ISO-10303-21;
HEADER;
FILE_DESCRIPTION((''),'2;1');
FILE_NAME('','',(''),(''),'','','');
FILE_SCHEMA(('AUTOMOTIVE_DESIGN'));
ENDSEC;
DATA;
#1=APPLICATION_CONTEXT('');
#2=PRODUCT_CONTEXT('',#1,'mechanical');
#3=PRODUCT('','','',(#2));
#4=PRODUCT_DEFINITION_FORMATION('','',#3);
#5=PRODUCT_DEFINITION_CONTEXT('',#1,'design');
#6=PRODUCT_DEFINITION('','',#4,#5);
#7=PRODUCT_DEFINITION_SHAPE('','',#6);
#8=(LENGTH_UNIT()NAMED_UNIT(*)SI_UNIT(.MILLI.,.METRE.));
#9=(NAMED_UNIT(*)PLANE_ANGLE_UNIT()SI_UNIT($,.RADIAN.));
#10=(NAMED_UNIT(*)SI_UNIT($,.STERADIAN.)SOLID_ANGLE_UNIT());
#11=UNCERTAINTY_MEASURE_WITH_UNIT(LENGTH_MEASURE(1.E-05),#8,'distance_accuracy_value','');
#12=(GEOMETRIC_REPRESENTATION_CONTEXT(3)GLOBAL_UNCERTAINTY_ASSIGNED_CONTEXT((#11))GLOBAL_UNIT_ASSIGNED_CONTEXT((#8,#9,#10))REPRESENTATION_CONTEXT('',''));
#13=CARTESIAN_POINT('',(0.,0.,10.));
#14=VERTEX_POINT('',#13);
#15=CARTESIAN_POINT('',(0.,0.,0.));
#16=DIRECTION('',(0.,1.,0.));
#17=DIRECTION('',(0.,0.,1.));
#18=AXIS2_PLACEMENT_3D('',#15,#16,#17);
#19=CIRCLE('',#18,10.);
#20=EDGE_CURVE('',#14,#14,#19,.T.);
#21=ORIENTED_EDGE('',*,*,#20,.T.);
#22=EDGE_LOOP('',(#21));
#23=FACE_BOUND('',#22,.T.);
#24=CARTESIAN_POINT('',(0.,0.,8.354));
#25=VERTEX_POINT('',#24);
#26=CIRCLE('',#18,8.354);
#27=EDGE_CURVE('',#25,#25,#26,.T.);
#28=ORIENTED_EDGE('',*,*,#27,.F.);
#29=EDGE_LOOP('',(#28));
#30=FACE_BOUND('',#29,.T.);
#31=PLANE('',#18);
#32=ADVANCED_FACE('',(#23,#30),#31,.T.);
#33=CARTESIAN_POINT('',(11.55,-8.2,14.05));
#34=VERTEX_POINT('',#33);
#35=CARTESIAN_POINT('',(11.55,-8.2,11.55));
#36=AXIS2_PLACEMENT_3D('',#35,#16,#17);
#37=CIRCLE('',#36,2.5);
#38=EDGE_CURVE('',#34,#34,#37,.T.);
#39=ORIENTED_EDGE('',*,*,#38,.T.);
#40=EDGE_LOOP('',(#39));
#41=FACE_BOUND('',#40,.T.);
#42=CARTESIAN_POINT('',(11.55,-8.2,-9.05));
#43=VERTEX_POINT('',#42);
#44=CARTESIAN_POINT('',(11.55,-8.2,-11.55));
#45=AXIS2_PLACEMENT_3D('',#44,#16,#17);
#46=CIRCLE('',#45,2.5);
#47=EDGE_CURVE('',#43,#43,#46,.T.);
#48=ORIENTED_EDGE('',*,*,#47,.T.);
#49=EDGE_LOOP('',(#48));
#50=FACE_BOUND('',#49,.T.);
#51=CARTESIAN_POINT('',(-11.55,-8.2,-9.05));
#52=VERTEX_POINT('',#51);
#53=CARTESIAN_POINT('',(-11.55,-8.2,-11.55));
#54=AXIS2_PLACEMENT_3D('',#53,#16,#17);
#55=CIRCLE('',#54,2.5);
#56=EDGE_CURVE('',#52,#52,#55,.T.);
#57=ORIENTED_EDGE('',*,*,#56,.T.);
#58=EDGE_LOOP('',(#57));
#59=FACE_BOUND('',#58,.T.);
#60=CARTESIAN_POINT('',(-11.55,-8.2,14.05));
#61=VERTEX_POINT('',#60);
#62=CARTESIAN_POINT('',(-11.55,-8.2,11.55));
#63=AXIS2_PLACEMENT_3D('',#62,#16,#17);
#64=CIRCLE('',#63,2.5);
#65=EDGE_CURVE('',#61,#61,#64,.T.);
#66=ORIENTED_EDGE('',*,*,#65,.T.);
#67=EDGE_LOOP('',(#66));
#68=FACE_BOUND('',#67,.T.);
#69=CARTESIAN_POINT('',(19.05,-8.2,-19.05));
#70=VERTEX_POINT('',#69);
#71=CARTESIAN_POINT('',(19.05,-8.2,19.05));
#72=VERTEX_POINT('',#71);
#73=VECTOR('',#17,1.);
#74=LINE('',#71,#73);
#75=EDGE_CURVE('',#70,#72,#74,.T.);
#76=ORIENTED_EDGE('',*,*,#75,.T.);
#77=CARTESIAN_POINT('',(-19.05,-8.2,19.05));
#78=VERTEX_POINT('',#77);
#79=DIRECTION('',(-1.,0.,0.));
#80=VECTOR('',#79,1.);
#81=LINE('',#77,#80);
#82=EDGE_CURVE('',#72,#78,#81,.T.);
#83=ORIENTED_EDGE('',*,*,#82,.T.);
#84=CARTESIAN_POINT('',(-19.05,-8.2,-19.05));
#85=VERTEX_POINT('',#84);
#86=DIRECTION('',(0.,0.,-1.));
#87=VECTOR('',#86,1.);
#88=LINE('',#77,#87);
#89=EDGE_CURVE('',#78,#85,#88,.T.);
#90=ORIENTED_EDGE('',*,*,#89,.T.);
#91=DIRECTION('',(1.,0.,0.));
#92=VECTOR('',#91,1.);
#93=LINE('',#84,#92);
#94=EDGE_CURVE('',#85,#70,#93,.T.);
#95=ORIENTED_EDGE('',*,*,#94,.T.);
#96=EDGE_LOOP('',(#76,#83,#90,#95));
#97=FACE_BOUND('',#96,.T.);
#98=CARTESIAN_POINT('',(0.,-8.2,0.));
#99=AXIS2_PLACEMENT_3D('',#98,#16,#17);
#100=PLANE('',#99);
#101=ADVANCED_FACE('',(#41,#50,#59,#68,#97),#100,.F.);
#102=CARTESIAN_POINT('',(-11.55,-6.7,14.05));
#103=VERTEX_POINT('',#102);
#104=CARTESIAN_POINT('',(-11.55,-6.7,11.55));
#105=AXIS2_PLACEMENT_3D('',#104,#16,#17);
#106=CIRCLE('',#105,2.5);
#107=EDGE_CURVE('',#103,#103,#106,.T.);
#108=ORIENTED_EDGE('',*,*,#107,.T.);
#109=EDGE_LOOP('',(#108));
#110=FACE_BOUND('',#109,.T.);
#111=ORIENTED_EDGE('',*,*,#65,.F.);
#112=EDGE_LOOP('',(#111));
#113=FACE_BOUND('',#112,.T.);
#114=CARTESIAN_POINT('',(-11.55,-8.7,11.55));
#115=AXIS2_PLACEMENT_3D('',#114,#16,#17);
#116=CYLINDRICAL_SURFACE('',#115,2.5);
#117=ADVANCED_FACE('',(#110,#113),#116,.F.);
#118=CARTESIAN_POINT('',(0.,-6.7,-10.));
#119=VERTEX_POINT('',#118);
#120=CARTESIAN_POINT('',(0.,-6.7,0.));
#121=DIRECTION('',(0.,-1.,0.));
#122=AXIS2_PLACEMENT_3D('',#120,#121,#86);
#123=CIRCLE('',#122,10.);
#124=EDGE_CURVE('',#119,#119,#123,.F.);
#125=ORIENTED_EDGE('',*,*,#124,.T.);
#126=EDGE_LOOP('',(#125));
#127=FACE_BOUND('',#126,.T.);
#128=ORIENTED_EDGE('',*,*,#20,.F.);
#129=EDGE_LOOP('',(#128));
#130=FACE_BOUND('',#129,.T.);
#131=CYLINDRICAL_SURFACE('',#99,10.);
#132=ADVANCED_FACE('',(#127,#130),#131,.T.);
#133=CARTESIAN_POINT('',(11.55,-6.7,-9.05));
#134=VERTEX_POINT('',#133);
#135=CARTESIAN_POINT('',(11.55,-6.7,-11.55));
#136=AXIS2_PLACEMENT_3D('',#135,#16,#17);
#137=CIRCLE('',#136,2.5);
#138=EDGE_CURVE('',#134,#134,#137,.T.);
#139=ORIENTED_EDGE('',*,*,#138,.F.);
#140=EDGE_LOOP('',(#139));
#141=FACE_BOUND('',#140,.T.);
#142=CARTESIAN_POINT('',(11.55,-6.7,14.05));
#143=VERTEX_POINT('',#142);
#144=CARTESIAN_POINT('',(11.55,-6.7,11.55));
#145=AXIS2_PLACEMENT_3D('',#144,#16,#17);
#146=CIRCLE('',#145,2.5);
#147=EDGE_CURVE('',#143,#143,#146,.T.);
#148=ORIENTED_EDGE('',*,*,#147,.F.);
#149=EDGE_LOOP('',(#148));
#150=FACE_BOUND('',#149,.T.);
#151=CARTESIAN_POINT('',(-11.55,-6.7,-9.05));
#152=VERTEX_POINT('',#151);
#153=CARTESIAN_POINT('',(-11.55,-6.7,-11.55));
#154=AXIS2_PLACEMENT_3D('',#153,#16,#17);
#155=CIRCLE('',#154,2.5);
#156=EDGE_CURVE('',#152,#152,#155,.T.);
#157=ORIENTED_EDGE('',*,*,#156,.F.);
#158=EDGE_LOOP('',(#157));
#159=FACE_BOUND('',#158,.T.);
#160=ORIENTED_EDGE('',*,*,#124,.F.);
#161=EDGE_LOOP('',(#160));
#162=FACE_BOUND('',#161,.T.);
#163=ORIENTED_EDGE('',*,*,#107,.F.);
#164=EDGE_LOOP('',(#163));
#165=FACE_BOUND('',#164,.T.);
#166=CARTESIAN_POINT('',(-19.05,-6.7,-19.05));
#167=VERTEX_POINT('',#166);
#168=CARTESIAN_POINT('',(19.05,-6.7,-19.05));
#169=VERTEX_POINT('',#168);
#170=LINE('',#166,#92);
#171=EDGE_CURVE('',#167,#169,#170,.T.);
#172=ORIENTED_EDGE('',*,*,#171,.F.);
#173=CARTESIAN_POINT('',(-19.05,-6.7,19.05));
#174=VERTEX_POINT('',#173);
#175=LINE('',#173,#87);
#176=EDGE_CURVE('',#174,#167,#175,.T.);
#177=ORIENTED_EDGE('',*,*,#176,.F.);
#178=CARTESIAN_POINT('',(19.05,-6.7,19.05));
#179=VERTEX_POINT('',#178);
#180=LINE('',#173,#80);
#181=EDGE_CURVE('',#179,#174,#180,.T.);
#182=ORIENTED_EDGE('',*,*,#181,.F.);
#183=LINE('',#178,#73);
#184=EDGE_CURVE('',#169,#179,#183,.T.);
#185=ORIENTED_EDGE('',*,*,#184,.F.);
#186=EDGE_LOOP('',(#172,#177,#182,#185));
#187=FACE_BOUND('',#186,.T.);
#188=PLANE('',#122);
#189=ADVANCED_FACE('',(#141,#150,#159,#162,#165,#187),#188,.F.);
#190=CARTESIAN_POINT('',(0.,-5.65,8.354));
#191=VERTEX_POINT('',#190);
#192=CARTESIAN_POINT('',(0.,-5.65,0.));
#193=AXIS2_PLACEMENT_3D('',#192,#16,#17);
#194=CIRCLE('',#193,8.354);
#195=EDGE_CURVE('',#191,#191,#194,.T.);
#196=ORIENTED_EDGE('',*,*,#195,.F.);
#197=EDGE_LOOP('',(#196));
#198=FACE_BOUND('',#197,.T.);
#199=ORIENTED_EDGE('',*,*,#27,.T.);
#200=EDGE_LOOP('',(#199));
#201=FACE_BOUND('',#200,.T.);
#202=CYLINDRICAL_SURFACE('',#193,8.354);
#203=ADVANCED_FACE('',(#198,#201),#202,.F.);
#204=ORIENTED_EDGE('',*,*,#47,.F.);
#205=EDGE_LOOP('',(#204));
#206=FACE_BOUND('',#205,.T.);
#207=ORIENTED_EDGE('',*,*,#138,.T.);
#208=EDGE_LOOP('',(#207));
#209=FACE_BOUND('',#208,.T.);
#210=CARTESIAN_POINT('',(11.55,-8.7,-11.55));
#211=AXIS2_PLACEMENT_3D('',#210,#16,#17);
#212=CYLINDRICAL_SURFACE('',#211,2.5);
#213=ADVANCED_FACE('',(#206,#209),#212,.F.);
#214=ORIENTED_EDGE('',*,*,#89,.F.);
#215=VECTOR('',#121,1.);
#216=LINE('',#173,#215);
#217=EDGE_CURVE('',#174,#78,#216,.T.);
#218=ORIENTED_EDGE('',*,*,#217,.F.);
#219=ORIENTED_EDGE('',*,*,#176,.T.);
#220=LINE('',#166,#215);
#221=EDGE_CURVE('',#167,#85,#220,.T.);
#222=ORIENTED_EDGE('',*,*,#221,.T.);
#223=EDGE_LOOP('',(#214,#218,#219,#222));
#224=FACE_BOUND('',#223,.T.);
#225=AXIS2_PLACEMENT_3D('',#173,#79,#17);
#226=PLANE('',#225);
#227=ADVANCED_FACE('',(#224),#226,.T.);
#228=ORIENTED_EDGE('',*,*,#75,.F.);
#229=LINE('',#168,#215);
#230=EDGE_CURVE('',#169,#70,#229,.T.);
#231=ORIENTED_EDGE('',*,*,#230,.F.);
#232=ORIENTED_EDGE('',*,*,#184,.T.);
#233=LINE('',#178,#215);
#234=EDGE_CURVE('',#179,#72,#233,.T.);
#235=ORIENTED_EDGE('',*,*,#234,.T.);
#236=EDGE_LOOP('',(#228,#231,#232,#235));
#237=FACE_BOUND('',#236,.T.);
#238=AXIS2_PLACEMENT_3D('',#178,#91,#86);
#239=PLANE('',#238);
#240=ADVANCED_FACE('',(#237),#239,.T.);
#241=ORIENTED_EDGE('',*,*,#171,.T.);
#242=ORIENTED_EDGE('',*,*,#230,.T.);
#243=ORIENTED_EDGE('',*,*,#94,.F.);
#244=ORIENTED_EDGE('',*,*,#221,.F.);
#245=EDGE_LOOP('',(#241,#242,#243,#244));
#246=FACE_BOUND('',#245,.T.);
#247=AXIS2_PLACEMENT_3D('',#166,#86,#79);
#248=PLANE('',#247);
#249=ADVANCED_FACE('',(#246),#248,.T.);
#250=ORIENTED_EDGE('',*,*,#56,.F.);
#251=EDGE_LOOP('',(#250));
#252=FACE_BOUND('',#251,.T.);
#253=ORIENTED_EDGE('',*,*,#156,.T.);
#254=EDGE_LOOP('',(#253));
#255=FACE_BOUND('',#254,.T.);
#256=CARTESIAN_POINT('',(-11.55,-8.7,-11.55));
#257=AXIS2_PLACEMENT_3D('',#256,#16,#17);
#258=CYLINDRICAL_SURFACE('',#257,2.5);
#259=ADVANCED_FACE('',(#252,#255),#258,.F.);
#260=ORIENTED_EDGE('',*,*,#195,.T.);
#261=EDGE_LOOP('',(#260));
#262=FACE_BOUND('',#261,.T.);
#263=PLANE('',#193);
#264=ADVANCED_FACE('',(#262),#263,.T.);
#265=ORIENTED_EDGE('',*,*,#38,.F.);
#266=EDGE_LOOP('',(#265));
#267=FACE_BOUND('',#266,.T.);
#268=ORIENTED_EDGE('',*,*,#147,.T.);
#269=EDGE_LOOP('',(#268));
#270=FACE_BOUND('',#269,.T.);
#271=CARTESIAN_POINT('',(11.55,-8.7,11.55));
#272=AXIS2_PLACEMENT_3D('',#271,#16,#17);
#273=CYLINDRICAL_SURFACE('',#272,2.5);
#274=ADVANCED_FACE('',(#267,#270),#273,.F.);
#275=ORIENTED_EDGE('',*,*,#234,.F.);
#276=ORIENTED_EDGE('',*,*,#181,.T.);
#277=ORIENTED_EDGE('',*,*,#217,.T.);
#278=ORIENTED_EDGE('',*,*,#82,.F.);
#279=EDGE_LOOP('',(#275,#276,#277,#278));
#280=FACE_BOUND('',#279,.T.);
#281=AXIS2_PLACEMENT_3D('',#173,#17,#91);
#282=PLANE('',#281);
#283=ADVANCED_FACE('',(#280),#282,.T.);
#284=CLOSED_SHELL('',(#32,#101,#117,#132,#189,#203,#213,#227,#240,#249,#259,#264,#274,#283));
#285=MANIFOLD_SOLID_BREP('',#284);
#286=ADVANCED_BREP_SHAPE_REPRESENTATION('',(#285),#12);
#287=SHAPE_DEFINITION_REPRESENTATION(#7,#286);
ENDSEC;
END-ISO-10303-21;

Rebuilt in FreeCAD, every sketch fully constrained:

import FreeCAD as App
import Part
import Sketcher

doc = App.newDocument("Part")
body = doc.addObject("PartDesign::Body", "Body")

sketch1 = body.newObject("Sketcher::SketchObject", "Sketch")
sketch1.AttachmentSupport = (doc.getObject("XZ_Plane"), [""])
sketch1.MapMode = "FlatFace"
sketch1.addGeometry(Part.Circle(App.Vector(0, 0, 0), App.Vector(0, 0, 1), 10), False)
sketch1.addConstraint([
    Sketcher.Constraint("Coincident", 0, 3, -1, 1),
    Sketcher.Constraint("Diameter", 0, 20.0),
])
pad1 = body.newObject("PartDesign::Pad", "Pad")
pad1.Profile = sketch1
pad1.Length = 8.2

sketch2 = body.newObject("Sketcher::SketchObject", "Sketch001")
sketch2.AttachmentSupport = (doc.getObject("XZ_Plane"), [""])
sketch2.MapMode = "FlatFace"
sketch2.addGeometry(Part.Circle(App.Vector(0, 0, 0), App.Vector(0, 0, 1), 8.354), False)
sketch2.addConstraint([
    Sketcher.Constraint("Coincident", 0, 3, -1, 1),
    Sketcher.Constraint("Diameter", 0, 16.708),
])
pocket1 = body.newObject("PartDesign::Pocket", "Pocket")
pocket1.Profile = sketch2
pocket1.Length = 5.65
pocket1.Reversed = True

sketch3 = body.newObject("Sketcher::SketchObject", "Sketch002")
sketch3.AttachmentSupport = (doc.getObject("XZ_Plane"), [""])
sketch3.MapMode = "FlatFace"
sketch3.AttachmentOffset = App.Placement(App.Vector(0, 0, 8.2), App.Rotation())
sketch3.addGeometry([
    Part.LineSegment(App.Vector(19.05, -19.05, 0), App.Vector(19.05, 19.05, 0)),
    Part.LineSegment(App.Vector(19.05, 19.05, 0), App.Vector(-19.05, 19.05, 0)),
    Part.LineSegment(App.Vector(-19.05, 19.05, 0), App.Vector(-19.05, -19.05, 0)),
    Part.LineSegment(App.Vector(-19.05, -19.05, 0), App.Vector(19.05, -19.05, 0)),
], False)
sketch3.addConstraint([
    Sketcher.Constraint("Coincident", 0, 2, 1, 1),
    Sketcher.Constraint("Coincident", 1, 2, 2, 1),
    Sketcher.Constraint("Coincident", 2, 2, 3, 1),
    Sketcher.Constraint("Coincident", 3, 2, 0, 1),
    Sketcher.Constraint("Vertical", 0),
    Sketcher.Constraint("Horizontal", 1),
    Sketcher.Constraint("Vertical", 2),
    Sketcher.Constraint("Horizontal", 3),
    Sketcher.Constraint("Symmetric", 0, 2, 2, 2, -1, 1),
    Sketcher.Constraint("Equal", 3, 0),
    Sketcher.Constraint("DistanceX", 1, 2, 1, 1, 38.1),
])
pad2 = body.newObject("PartDesign::Pad", "Pad001")
pad2.Profile = sketch3
pad2.Length = 1.5
pad2.Reversed = True

sketch4 = body.newObject("Sketcher::SketchObject", "Sketch003")
sketch4.AttachmentSupport = (doc.getObject("XZ_Plane"), [""])
sketch4.MapMode = "FlatFace"
sketch4.AttachmentOffset = App.Placement(App.Vector(0, 0, 6.7), App.Rotation())
sketch4.addGeometry([
    Part.Circle(App.Vector(-11.55, -11.55, 0), App.Vector(0, 0, 1), 2.5),
    Part.Circle(App.Vector(11.55, -11.55, 0), App.Vector(0, 0, 1), 2.5),
    Part.Circle(App.Vector(11.55, 11.55, 0), App.Vector(0, 0, 1), 2.5),
    Part.Circle(App.Vector(-11.55, 11.55, 0), App.Vector(0, 0, 1), 2.5),
], False)
sketch4.addConstraint([
    Sketcher.Constraint("Equal", 0, 1),
    Sketcher.Constraint("Equal", 1, 2),
    Sketcher.Constraint("Equal", 2, 3),
    Sketcher.Constraint("Symmetric", 0, 3, 2, 3, -1, 1),
    Sketcher.Constraint("Symmetric", 1, 3, 3, 3, -1, 1),
    Sketcher.Constraint("Symmetric", 0, 3, 1, 3, -2),
    Sketcher.Constraint("Diameter", 0, 5.0),
    Sketcher.Constraint("DistanceX", 0, 3, 1, 3, 23.1),
    Sketcher.Constraint("DistanceY", 1, 3, 2, 3, 23.1),
])
pocket2 = body.newObject("PartDesign::Pocket", "Pocket001")
pocket2.Profile = sketch4
pocket2.Length = 2
pocket2.Reversed = True

doc.recompute()
